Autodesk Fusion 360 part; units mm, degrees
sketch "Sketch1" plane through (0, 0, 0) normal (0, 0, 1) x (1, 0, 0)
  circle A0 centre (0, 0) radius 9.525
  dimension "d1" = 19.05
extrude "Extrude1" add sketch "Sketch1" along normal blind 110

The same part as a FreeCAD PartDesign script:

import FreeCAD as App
import Part
import Sketcher
Q = App.Units.Quantity

doc = App.newDocument("Part")
body = doc.addObject("PartDesign::Body", "Body")

sketch1 = body.newObject("Sketcher::SketchObject", "Sketch")
sketch1.AttachmentSupport = (doc.getObject("XY_Plane"), [""])
sketch1.MapMode = "FlatFace"
sketch1.addGeometry(Part.Circle(App.Vector(0, 0, 0), App.Vector(0, 0, 1), 10), False)
sketch1.addConstraint(Sketcher.Constraint("Coincident", 0, 3, -1, 1))
sketch1.addConstraint(Sketcher.Constraint("Diameter", 0, Q("0.75 in")))
pad1 = body.newObject("PartDesign::Pad", "Pad")
pad1.Profile = sketch1
pad1.Length = Q("4.3307087 in")

doc.recompute()
